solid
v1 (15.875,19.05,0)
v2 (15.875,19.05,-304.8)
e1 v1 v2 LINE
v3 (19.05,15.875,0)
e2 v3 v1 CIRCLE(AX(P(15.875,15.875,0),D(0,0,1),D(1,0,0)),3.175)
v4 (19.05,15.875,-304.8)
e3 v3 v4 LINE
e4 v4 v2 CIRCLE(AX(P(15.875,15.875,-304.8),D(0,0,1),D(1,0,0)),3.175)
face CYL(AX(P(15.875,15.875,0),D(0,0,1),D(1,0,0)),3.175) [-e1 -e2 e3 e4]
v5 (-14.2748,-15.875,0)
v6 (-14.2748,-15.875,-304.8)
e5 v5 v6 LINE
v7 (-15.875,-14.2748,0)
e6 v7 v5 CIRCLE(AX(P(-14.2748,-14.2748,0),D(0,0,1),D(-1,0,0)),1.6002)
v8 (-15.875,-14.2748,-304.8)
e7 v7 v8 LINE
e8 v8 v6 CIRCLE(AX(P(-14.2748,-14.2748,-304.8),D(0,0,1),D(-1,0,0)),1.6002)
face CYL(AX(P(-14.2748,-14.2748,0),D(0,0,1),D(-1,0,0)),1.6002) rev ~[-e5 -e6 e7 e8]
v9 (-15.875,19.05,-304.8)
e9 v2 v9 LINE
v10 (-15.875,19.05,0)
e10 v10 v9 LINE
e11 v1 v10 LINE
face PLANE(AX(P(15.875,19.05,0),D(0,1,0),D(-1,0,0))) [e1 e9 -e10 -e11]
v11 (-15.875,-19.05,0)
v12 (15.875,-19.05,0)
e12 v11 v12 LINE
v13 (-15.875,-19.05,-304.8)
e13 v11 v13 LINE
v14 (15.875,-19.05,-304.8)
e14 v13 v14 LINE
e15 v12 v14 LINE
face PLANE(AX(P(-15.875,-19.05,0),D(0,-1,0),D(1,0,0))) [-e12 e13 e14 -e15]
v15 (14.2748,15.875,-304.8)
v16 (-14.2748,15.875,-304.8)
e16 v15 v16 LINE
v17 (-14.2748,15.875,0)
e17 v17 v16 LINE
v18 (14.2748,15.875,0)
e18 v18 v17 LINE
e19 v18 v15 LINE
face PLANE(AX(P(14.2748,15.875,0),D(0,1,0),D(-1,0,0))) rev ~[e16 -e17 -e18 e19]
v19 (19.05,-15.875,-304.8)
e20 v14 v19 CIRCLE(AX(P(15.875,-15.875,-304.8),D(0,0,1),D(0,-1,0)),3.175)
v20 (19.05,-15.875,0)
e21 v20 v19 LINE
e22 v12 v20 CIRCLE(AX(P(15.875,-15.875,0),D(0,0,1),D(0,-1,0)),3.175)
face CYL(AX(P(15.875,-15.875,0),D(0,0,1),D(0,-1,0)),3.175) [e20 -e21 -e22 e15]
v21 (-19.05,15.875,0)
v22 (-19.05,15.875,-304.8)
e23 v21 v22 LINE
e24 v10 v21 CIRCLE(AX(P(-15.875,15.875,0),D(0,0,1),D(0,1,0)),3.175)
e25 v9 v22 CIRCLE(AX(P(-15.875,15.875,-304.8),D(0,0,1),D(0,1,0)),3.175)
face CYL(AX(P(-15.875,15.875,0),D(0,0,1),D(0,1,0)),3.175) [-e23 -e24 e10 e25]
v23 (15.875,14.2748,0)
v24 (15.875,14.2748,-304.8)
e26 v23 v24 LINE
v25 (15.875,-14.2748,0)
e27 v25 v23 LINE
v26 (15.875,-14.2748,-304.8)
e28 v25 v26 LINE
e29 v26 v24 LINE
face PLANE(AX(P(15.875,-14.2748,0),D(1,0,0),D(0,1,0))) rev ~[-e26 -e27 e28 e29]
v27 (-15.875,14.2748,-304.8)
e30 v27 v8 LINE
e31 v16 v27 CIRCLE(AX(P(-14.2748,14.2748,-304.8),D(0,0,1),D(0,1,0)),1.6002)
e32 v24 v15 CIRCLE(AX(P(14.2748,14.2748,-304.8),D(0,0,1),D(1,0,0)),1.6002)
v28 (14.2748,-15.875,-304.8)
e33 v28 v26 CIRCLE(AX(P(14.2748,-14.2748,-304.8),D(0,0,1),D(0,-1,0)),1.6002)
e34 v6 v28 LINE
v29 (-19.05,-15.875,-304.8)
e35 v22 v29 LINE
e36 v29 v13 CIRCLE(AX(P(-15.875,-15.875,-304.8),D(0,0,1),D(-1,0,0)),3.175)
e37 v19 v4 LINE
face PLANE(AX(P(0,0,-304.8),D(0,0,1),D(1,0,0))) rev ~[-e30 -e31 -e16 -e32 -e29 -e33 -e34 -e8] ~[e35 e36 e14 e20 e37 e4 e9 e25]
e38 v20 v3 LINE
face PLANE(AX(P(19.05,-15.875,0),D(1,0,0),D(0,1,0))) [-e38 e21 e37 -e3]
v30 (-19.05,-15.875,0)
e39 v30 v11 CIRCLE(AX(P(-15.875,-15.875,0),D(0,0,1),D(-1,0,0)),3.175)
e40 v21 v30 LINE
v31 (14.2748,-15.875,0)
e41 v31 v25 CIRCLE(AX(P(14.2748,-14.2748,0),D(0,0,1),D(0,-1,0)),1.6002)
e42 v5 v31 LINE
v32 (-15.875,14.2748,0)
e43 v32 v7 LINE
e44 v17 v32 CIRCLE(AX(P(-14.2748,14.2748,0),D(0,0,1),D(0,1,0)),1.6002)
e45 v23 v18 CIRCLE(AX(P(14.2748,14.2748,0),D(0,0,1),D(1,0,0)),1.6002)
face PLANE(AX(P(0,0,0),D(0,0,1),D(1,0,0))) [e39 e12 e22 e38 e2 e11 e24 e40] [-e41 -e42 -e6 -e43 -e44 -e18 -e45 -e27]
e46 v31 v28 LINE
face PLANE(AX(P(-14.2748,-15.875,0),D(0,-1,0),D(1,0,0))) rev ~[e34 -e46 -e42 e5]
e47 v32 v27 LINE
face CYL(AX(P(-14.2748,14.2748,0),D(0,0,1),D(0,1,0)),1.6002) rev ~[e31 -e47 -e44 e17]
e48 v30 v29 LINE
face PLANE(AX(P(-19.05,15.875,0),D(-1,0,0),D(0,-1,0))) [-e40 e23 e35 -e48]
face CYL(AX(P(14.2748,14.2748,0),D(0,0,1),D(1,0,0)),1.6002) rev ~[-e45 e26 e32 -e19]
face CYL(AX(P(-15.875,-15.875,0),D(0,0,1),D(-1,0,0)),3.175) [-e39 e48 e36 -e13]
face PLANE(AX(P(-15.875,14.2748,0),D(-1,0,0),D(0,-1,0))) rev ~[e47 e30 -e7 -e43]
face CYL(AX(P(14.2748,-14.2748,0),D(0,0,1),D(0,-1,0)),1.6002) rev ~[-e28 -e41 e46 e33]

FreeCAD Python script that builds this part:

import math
import FreeCAD as App
import Part
import Sketcher
from FreeCAD import Vector
Q = App.Units.Quantity

doc = App.newDocument("Part")
body = doc.addObject("PartDesign::Body", "Body")

sketch1 = body.newObject("Sketcher::SketchObject", "Sketch")
sketch1.AttachmentSupport = (doc.getObject("XY_Plane"), [""])
sketch1.MapMode = "FlatFace"
sketch1.addGeometry([
    Part.LineSegment(Vector(19.1, -15.9, 0), Vector(19.1, 15.9, 0)),
    Part.ArcOfCircle(Part.Circle(Vector(15.9, 15.9, 0), Vector(0, 0, 1), 3.2), math.radians(0), math.radians(90)),
    Part.LineSegment(Vector(15.9, 19.1, 0), Vector(-15.9, 19.1, 0)),
    Part.ArcOfCircle(Part.Circle(Vector(-15.9, 15.9, 0), Vector(0, 0, 1), 3.2), math.radians(90), math.radians(180)),
    Part.LineSegment(Vector(-19.1, 15.9, 0), Vector(-19.1, -15.9, 0)),
    Part.ArcOfCircle(Part.Circle(Vector(-15.9, -15.9, 0), Vector(0, 0, 1), 3.2), math.radians(180), math.radians(270)),
    Part.LineSegment(Vector(-15.9, -19.1, 0), Vector(15.9, -19.1, 0)),
    Part.ArcOfCircle(Part.Circle(Vector(15.9, -15.9, 0), Vector(0, 0, 1), 3.2), math.radians(-90), math.radians(0)),
    Part.LineSegment(Vector(-15.9, -14.3, 0), Vector(-15.9, 14.3, 0)),
    Part.ArcOfCircle(Part.Circle(Vector(-14.3, 14.3, 0), Vector(0, 0, 1), 1.6), math.radians(90), math.radians(180)),
    Part.LineSegment(Vector(-14.3, 15.9, 0), Vector(14.3, 15.9, 0)),
    Part.ArcOfCircle(Part.Circle(Vector(14.3, 14.3, 0), Vector(0, 0, 1), 1.6), math.radians(0), math.radians(90)),
    Part.LineSegment(Vector(15.9, 14.3, 0), Vector(15.9, -14.3, 0)),
    Part.ArcOfCircle(Part.Circle(Vector(14.3, -14.3, 0), Vector(0, 0, 1), 1.6), math.radians(-90), math.radians(0)),
    Part.LineSegment(Vector(14.3, -15.9, 0), Vector(-14.3, -15.9, 0)),
    Part.ArcOfCircle(Part.Circle(Vector(-14.3, -14.3, 0), Vector(0, 0, 1), 1.6), math.radians(180), math.radians(270)),
], False)
sketch1.addConstraint([
    Sketcher.Constraint("Tangent", 0, 2, 1, 1),
    Sketcher.Constraint("Tangent", 1, 2, 2, 1),
    Sketcher.Constraint("Tangent", 2, 2, 3, 1),
    Sketcher.Constraint("Tangent", 3, 2, 4, 1),
    Sketcher.Constraint("Tangent", 4, 2, 5, 1),
    Sketcher.Constraint("Tangent", 5, 2, 6, 1),
    Sketcher.Constraint("Tangent", 6, 2, 7, 1),
    Sketcher.Constraint("Tangent", 7, 2, 0, 1),
    Sketcher.Constraint("Tangent", 8, 2, 9, 2),
    Sketcher.Constraint("Tangent", 9, 1, 10, 1),
    Sketcher.Constraint("Tangent", 10, 2, 11, 2),
    Sketcher.Constraint("Tangent", 11, 1, 12, 1),
    Sketcher.Constraint("Tangent", 12, 2, 13, 2),
    Sketcher.Constraint("Tangent", 13, 1, 14, 1),
    Sketcher.Constraint("Tangent", 14, 2, 15, 2),
    Sketcher.Constraint("Tangent", 15, 1, 8, 1),
    Sketcher.Constraint("Vertical", 0),
    Sketcher.Constraint("Horizontal", 2),
    Sketcher.Constraint("Vertical", 4),
    Sketcher.Constraint("Horizontal", 6),
    Sketcher.Constraint("Vertical", 8),
    Sketcher.Constraint("Horizontal", 10),
    Sketcher.Constraint("Vertical", 12),
    Sketcher.Constraint("Horizontal", 14),
    Sketcher.Constraint("Equal", 1, 3),
    Sketcher.Constraint("Equal", 3, 5),
    Sketcher.Constraint("Equal", 5, 7),
    Sketcher.Constraint("Equal", 9, 11),
    Sketcher.Constraint("Equal", 11, 13),
    Sketcher.Constraint("Equal", 13, 15),
    Sketcher.Constraint("Symmetric", 1, 3, 5, 3, -1, 1),
    Sketcher.Constraint("Symmetric", 9, 3, 13, 3, -1, 1),
    Sketcher.Constraint("Horizontal", 3, 2, 9, 1),
    Sketcher.Constraint("Vertical", 5, 2, 8, 2),
    Sketcher.Constraint("Equal", 6, 0),
    Sketcher.Constraint("Radius", 1, Q("0.125 in")),
    Sketcher.Constraint("Radius", 9, Q("0.063 in")),
    Sketcher.Constraint("DistanceX", 2, 2, 2, 1, Q("1.25 in")),
])
pad1 = body.newObject("PartDesign::Pad", "Pad")
pad1.Profile = sketch1
pad1.Length = Q("12 in")
pad1.Reversed = True

doc.recompute()
